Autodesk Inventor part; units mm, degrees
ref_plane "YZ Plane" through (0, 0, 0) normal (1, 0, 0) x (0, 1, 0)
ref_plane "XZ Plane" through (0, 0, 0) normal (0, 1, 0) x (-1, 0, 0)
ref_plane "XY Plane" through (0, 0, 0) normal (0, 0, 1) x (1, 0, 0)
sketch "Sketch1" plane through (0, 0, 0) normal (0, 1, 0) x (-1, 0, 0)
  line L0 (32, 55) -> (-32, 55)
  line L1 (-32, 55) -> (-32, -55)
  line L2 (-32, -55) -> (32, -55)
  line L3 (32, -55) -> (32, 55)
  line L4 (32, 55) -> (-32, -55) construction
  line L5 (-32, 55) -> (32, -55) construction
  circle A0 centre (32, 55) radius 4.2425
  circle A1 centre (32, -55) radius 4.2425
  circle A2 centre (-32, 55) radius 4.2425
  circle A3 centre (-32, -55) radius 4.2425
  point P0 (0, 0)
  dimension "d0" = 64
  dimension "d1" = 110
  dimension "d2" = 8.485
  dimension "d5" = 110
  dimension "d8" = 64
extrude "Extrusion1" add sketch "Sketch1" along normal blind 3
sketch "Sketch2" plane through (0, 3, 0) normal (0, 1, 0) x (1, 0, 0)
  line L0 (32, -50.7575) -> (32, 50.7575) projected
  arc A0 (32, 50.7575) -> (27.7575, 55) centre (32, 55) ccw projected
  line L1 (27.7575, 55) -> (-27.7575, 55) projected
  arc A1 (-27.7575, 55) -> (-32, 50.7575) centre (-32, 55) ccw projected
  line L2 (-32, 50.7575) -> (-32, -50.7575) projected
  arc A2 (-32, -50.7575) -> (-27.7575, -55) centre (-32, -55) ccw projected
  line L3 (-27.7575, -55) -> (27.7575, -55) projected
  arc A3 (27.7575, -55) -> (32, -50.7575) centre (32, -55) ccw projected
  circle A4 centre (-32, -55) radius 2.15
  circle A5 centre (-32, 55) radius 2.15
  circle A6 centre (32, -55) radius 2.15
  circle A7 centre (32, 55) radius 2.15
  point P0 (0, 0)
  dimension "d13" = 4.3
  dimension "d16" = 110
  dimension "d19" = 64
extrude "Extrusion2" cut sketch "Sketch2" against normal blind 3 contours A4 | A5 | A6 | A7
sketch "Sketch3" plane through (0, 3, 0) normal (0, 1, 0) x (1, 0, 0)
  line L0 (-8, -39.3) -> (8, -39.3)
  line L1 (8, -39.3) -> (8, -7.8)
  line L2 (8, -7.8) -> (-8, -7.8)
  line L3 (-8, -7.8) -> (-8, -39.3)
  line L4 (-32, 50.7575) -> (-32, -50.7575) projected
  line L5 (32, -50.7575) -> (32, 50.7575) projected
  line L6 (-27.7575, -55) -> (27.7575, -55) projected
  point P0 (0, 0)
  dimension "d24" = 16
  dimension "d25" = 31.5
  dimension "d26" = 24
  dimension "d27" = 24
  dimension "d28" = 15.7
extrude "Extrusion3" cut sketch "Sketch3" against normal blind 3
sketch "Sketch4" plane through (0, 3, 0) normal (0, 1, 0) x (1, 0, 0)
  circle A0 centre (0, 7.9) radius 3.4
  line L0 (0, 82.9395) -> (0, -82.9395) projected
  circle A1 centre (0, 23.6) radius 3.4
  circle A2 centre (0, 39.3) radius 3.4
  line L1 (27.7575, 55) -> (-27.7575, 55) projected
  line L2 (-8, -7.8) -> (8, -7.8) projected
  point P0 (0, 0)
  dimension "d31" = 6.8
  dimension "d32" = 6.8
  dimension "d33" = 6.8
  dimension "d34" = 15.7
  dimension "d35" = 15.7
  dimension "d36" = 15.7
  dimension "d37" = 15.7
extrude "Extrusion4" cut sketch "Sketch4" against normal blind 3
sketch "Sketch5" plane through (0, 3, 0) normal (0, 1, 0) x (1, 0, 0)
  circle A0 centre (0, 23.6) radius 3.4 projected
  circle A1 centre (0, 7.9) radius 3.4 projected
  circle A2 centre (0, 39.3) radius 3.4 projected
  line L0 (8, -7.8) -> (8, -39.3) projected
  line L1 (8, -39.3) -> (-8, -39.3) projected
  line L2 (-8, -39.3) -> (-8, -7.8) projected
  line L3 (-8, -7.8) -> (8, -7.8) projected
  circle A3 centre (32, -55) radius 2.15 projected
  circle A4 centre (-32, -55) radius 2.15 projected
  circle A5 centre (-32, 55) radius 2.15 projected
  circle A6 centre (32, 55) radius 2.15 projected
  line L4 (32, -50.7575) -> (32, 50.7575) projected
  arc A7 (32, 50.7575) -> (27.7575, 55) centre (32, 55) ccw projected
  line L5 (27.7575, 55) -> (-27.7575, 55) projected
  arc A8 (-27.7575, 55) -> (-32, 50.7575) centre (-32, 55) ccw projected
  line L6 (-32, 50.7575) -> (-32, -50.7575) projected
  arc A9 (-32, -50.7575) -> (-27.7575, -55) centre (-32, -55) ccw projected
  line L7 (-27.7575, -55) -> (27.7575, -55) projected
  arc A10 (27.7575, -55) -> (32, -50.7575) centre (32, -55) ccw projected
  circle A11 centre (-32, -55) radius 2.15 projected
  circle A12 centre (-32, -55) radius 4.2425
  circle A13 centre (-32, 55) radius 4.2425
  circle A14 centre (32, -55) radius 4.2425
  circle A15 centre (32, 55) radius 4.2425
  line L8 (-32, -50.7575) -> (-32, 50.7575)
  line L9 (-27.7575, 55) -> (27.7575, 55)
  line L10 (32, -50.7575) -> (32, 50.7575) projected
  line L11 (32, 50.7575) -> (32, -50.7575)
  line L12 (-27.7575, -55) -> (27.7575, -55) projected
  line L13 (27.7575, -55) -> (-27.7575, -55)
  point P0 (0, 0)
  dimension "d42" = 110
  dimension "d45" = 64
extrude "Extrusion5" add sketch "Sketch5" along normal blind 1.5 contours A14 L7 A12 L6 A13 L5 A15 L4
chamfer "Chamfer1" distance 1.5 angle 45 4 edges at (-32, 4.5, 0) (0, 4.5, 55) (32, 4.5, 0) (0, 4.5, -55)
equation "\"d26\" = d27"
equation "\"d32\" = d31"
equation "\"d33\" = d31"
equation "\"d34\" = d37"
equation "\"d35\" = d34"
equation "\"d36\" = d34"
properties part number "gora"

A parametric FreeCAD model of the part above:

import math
import FreeCAD as App
import Part
import Sketcher

V = App.Vector


def edges_at(feature, points):
    """Names of the edges that pass closest to the given points."""
    edges = feature.Shape.Edges
    near = lambda p: min(range(len(edges)), key=lambda i: edges[i].distToShape(Part.Vertex(*p))[0])
    return sorted({f"Edge{near(p) + 1}" for p in points})

doc = App.newDocument("Part")
body = doc.addObject("PartDesign::Body", "Body")

# Sketch on XZ plane
sketch1 = body.newObject("Sketcher::SketchObject", "Sketch")
sketch1.AttachmentSupport = (doc.getObject("XZ_Plane"), [""])
sketch1.MapMode = "FlatFace"
sketch1.addGeometry([
    Part.LineSegment(V(-27.8, 55, 0), V(27.8, 55, 0)),  # 0
    Part.ArcOfCircle(Part.Circle(V(32, 55, 0), V(0, 0, 1), 4.2), math.radians(-90), math.radians(180)),  # 1
    Part.LineSegment(V(32, 50.8, 0), V(32, -50.8, 0)),  # 2
    Part.ArcOfCircle(Part.Circle(V(32, -55, 0), V(0, 0, 1), 4.2), math.radians(180), math.radians(450)),  # 3
    Part.LineSegment(V(27.8, -55, 0), V(-27.8, -55, 0)),  # 4
    Part.ArcOfCircle(Part.Circle(V(-32, -55, 0), V(0, 0, 1), 4.2), math.radians(90), math.radians(360)),  # 5
    Part.LineSegment(V(-32, -50.8, 0), V(-32, 50.8, 0)),  # 6
    Part.ArcOfCircle(Part.Circle(V(-32, 55, 0), V(0, 0, 1), 4.2), math.radians(0), math.radians(270)),  # 7
], False)
sketch1.addConstraint([
    Sketcher.Constraint("Coincident", 0, 2, 1, 2),
    Sketcher.Constraint("Coincident", 1, 1, 2, 1),
    Sketcher.Constraint("Coincident", 2, 2, 3, 2),
    Sketcher.Constraint("Coincident", 3, 1, 4, 1),
    Sketcher.Constraint("Coincident", 4, 2, 5, 2),
    Sketcher.Constraint("Coincident", 5, 1, 6, 1),
    Sketcher.Constraint("Coincident", 6, 2, 7, 2),
    Sketcher.Constraint("Coincident", 7, 1, 0, 1),
    Sketcher.Constraint("Horizontal", 0),
    Sketcher.Constraint("Vertical", 2),
    Sketcher.Constraint("Horizontal", 4),
    Sketcher.Constraint("Vertical", 6),
    Sketcher.Constraint("Equal", 1, 3),
    Sketcher.Constraint("Equal", 3, 5),
    Sketcher.Constraint("Equal", 5, 7),
    Sketcher.Constraint("Symmetric", 1, 3, 5, 3, -1, 1),
    Sketcher.Constraint("Symmetric", 3, 3, 7, 3, -1, 1),
    Sketcher.Constraint("Symmetric", 3, 3, 5, 3, -2),
    Sketcher.Constraint("Horizontal", 7, 3, 0, 2),
    Sketcher.Constraint("Horizontal", 5, 3, 3, 1),
    Sketcher.Constraint("Vertical", 3, 3, 1, 1),
    Sketcher.Constraint("Vertical", 7, 3, 5, 1),
    Sketcher.Constraint("DistanceY", 3, 3, 1, 3, 110.0),
    Sketcher.Constraint("DistanceX", 5, 3, 3, 3, 64.0),
    Sketcher.Constraint("Radius", 1, 4.2425),
])
pad1 = body.newObject("PartDesign::Pad", "Pad")
pad1.Profile = sketch1
pad1.Length = 3
pad1.Reversed = True

# Sketch on XZ plane
sketch2 = body.newObject("Sketcher::SketchObject", "Sketch001")
sketch2.AttachmentSupport = (doc.getObject("XZ_Plane"), [""])
sketch2.MapMode = "FlatFace"
sketch2.AttachmentOffset = App.Placement(V(0, 0, -3), App.Rotation())
sketch2.addGeometry([
    Part.Circle(V(-32, 55, 0), V(0, 0, 1), 2.1),
    Part.Circle(V(-32, -55, 0), V(0, 0, 1), 2.1),
    Part.Circle(V(32, 55, 0), V(0, 0, 1), 2.1),
    Part.Circle(V(32, -55, 0), V(0, 0, 1), 2.1),
], False)
sketch2.addConstraint([
    Sketcher.Constraint("Equal", 0, 1),
    Sketcher.Constraint("Equal", 1, 2),
    Sketcher.Constraint("Equal", 2, 3),
    Sketcher.Constraint("Symmetric", 1, 3, 2, 3, -1, 1),
    Sketcher.Constraint("Symmetric", 0, 3, 3, 3, -1, 1),
    Sketcher.Constraint("Symmetric", 0, 3, 2, 3, -2),
    Sketcher.Constraint("Diameter", 0, 4.3),
    Sketcher.Constraint("DistanceY", 1, 3, 0, 3, 110.0),
    Sketcher.Constraint("DistanceX", 0, 3, 2, 3, 64.0),
])
pocket1 = body.newObject("PartDesign::Pocket", "Pocket")
pocket1.Profile = sketch2
pocket1.Length = 3
pocket1.Reversed = True

# Sketch on XZ plane
sketch3 = body.newObject("Sketcher::SketchObject", "Sketch002")
sketch3.AttachmentSupport = (doc.getObject("XZ_Plane"), [""])
sketch3.MapMode = "FlatFace"
sketch3.AttachmentOffset = App.Placement(V(0, 0, -3), App.Rotation())
sketch3.addGeometry([
    Part.LineSegment(V(-8, 8, 0), V(-8, 39, 0)),
    Part.LineSegment(V(-8, 39, 0), V(8, 39, 0)),
    Part.LineSegment(V(8, 39, 0), V(8, 8, 0)),
    Part.LineSegment(V(8, 8, 0), V(-8, 8, 0)),
], False)
sketch3.addConstraint([
    Sketcher.Constraint("Coincident", 0, 2, 1, 1),
    Sketcher.Constraint("Coincident", 1, 2, 2, 1),
    Sketcher.Constraint("Coincident", 2, 2, 3, 1),
    Sketcher.Constraint("Coincident", 3, 2, 0, 1),
    Sketcher.Constraint("Vertical", 0),
    Sketcher.Constraint("Horizontal", 1),
    Sketcher.Constraint("Vertical", 2),
    Sketcher.Constraint("Horizontal", 3),
    Sketcher.Constraint("DistanceX", 1, 1, 1, 2, 16.0),
    Sketcher.Constraint("DistanceY", 0, 1, 0, 2, 31.5),
    Sketcher.Constraint("DistanceX", 0, 2, -1, 1, 8.0),
    Sketcher.Constraint("DistanceY", -1, 1, 0, 2, 39.3),
])
pocket2 = body.newObject("PartDesign::Pocket", "Pocket001")
pocket2.Profile = sketch3
pocket2.Length = 3
pocket2.Reversed = True

# Sketch on XZ plane
sketch4 = body.newObject("Sketcher::SketchObject", "Sketch003")
sketch4.AttachmentSupport = (doc.getObject("XZ_Plane"), [""])
sketch4.MapMode = "FlatFace"
sketch4.AttachmentOffset = App.Placement(V(0, 0, -3), App.Rotation())
sketch4.addGeometry([
    Part.Circle(V(0, -7.9, 0), V(0, 0, 1), 3.4),
    Part.Circle(V(0, -39.3, 0), V(0, 0, 1), 3.4),
    Part.Circle(V(0, -23.6, 0), V(0, 0, 1), 3.4),
], False)
sketch4.addConstraint([
    Sketcher.Constraint("Equal", 0, 1),
    Sketcher.Constraint("Equal", 1, 2),
    Sketcher.Constraint("PointOnObject", 0, 3, -2),
    Sketcher.Constraint("PointOnObject", 1, 3, -2),
    Sketcher.Constraint("PointOnObject", 2, 3, -2),
    Sketcher.Constraint("Diameter", 0, 6.8),
    Sketcher.Constraint("DistanceY", 1, 3, 2, 3, 15.7),
    Sketcher.Constraint("DistanceY", 2, 3, 0, 3, 15.7),
    Sketcher.Constraint("DistanceY", 0, 3, -1, 1, 7.9),
])
pocket3 = body.newObject("PartDesign::Pocket", "Pocket002")
pocket3.Profile = sketch4
pocket3.Length = 3
pocket3.Reversed = True

# Sketch on XZ plane
sketch5 = body.newObject("Sketcher::SketchObject", "Sketch004")
sketch5.AttachmentSupport = (doc.getObject("XZ_Plane"), [""])
sketch5.MapMode = "FlatFace"
sketch5.AttachmentOffset = App.Placement(V(0, 0, -3), App.Rotation())
sketch5.addGeometry([
    Part.ArcOfCircle(Part.Circle(V(32, 55, 0), V(0, 0, 1), 4.2), math.radians(180), math.radians(270)),  # 0
    Part.LineSegment(V(32, 50.8, 0), V(32, -50.8, 0)),  # 1
    Part.ArcOfCircle(Part.Circle(V(32, -55, 0), V(0, 0, 1), 4.2), math.radians(90), math.radians(180)),  # 2
    Part.LineSegment(V(27.8, -55, 0), V(-27.8, -55, 0)),  # 3
    Part.ArcOfCircle(Part.Circle(V(-32, -55, 0), V(0, 0, 1), 4.2), math.radians(0), math.radians(90)),  # 4
    Part.LineSegment(V(-32, -50.8, 0), V(-32, 50.8, 0)),  # 5
    Part.ArcOfCircle(Part.Circle(V(-32, 55, 0), V(0, 0, 1), 4.2), math.radians(-90), math.radians(0)),  # 6
    Part.LineSegment(V(-27.8, 55, 0), V(27.8, 55, 0)),  # 7
    Part.LineSegment(V(-8, 7.8, 0), V(8, 7.8, 0)),  # 8
    Part.LineSegment(V(8, 7.8, 0), V(8, 39.3, 0)),  # 9
    Part.LineSegment(V(8, 39.3, 0), V(-8, 39.3, 0)),  # 10
    Part.LineSegment(V(-8, 39.3, 0), V(-8, 7.8, 0)),  # 11
    Part.Circle(V(0, -7.9, 0), V(0, 0, 1), 3.4),  # 12
    Part.Circle(V(0, -23.6, 0), V(0, 0, 1), 3.4),  # 13
    Part.Circle(V(0, -39.3, 0), V(0, 0, 1), 3.4),  # 14
], False)
sketch5.addConstraint([
    Sketcher.Constraint("Coincident", 0, 2, 1, 1),
    Sketcher.Constraint("Coincident", 1, 2, 2, 1),
    Sketcher.Constraint("Coincident", 2, 2, 3, 1),
    Sketcher.Constraint("Coincident", 3, 2, 4, 1),
    Sketcher.Constraint("Coincident", 4, 2, 5, 1),
    Sketcher.Constraint("Coincident", 5, 2, 6, 1),
    Sketcher.Constraint("Coincident", 6, 2, 7, 1),
    Sketcher.Constraint("Coincident", 7, 2, 0, 1),
    Sketcher.Constraint("Coincident", 8, 2, 9, 1),
    Sketcher.Constraint("Coincident", 9, 2, 10, 1),
    Sketcher.Constraint("Coincident", 10, 2, 11, 1),
    Sketcher.Constraint("Coincident", 11, 2, 8, 1),
    Sketcher.Constraint("Vertical", 1),
    Sketcher.Constraint("Horizontal", 3),
    Sketcher.Constraint("Vertical", 5),
    Sketcher.Constraint("Horizontal", 7),
    Sketcher.Constraint("Horizontal", 8),
    Sketcher.Constraint("Vertical", 9),
    Sketcher.Constraint("Horizontal", 10),
    Sketcher.Constraint("Vertical", 11),
    Sketcher.Constraint("Equal", 0, 2),
    Sketcher.Constraint("Equal", 2, 4),
    Sketcher.Constraint("Equal", 4, 6),
    Sketcher.Constraint("Equal", 12, 13),
    Sketcher.Constraint("Equal", 13, 14),
    Sketcher.Constraint("Symmetric", 0, 3, 4, 3, -1, 1),
    Sketcher.Constraint("Symmetric", 2, 3, 6, 3, -1, 1),
    Sketcher.Constraint("Symmetric", 2, 3, 4, 3, -2),
    Sketcher.Constraint("PointOnObject", 12, 3, -2),
    Sketcher.Constraint("PointOnObject", 13, 3, -2),
    Sketcher.Constraint("PointOnObject", 14, 3, -2),
    Sketcher.Constraint("Horizontal", 4, 3, 2, 2),
    Sketcher.Constraint("Horizontal", 0, 3, 6, 2),
    Sketcher.Constraint("Vertical", 2, 3, 0, 2),
    Sketcher.Constraint("Vertical", 6, 3, 4, 2),
    Sketcher.Constraint("DistanceY", 2, 3, 0, 3, 110.0),
    Sketcher.Constraint("DistanceX", 4, 3, 2, 3, 64.0),
    Sketcher.Constraint("Diameter", 12, 6.8),
    Sketcher.Constraint("DistanceX", 8, 1, 8, 2, 16.0),
    Sketcher.Constraint("DistanceY", 9, 1, 9, 2, 31.5),
    Sketcher.Constraint("DistanceX", -1, 1, 8, 2, 8.0),
    Sketcher.Constraint("DistanceY", 12, 3, -1, 1, 7.9),
    Sketcher.Constraint("DistanceY", 13, 3, -1, 1, 23.6),
    Sketcher.Constraint("DistanceY", 14, 3, -1, 1, 39.3),
    Sketcher.Constraint("DistanceY", -1, 1, 8, 2, 7.8),
    Sketcher.Constraint("Radius", 0, 4.2425),
])
pad2 = body.newObject("PartDesign::Pad", "Pad001")
pad2.Profile = sketch5
pad2.Length = 1.5
pad2.Reversed = True
doc.recompute()

chamfer = body.newObject("PartDesign::Chamfer", "Chamfer")
chamfer.Base = (pad2, edges_at(pad2, [
    (-32, 4.5, 0),
    (0, 4.5, 55),
    (32, 4.5, 0),
    (0, 4.5, -55),
]))
chamfer.Size = 1.5

doc.recompute()
